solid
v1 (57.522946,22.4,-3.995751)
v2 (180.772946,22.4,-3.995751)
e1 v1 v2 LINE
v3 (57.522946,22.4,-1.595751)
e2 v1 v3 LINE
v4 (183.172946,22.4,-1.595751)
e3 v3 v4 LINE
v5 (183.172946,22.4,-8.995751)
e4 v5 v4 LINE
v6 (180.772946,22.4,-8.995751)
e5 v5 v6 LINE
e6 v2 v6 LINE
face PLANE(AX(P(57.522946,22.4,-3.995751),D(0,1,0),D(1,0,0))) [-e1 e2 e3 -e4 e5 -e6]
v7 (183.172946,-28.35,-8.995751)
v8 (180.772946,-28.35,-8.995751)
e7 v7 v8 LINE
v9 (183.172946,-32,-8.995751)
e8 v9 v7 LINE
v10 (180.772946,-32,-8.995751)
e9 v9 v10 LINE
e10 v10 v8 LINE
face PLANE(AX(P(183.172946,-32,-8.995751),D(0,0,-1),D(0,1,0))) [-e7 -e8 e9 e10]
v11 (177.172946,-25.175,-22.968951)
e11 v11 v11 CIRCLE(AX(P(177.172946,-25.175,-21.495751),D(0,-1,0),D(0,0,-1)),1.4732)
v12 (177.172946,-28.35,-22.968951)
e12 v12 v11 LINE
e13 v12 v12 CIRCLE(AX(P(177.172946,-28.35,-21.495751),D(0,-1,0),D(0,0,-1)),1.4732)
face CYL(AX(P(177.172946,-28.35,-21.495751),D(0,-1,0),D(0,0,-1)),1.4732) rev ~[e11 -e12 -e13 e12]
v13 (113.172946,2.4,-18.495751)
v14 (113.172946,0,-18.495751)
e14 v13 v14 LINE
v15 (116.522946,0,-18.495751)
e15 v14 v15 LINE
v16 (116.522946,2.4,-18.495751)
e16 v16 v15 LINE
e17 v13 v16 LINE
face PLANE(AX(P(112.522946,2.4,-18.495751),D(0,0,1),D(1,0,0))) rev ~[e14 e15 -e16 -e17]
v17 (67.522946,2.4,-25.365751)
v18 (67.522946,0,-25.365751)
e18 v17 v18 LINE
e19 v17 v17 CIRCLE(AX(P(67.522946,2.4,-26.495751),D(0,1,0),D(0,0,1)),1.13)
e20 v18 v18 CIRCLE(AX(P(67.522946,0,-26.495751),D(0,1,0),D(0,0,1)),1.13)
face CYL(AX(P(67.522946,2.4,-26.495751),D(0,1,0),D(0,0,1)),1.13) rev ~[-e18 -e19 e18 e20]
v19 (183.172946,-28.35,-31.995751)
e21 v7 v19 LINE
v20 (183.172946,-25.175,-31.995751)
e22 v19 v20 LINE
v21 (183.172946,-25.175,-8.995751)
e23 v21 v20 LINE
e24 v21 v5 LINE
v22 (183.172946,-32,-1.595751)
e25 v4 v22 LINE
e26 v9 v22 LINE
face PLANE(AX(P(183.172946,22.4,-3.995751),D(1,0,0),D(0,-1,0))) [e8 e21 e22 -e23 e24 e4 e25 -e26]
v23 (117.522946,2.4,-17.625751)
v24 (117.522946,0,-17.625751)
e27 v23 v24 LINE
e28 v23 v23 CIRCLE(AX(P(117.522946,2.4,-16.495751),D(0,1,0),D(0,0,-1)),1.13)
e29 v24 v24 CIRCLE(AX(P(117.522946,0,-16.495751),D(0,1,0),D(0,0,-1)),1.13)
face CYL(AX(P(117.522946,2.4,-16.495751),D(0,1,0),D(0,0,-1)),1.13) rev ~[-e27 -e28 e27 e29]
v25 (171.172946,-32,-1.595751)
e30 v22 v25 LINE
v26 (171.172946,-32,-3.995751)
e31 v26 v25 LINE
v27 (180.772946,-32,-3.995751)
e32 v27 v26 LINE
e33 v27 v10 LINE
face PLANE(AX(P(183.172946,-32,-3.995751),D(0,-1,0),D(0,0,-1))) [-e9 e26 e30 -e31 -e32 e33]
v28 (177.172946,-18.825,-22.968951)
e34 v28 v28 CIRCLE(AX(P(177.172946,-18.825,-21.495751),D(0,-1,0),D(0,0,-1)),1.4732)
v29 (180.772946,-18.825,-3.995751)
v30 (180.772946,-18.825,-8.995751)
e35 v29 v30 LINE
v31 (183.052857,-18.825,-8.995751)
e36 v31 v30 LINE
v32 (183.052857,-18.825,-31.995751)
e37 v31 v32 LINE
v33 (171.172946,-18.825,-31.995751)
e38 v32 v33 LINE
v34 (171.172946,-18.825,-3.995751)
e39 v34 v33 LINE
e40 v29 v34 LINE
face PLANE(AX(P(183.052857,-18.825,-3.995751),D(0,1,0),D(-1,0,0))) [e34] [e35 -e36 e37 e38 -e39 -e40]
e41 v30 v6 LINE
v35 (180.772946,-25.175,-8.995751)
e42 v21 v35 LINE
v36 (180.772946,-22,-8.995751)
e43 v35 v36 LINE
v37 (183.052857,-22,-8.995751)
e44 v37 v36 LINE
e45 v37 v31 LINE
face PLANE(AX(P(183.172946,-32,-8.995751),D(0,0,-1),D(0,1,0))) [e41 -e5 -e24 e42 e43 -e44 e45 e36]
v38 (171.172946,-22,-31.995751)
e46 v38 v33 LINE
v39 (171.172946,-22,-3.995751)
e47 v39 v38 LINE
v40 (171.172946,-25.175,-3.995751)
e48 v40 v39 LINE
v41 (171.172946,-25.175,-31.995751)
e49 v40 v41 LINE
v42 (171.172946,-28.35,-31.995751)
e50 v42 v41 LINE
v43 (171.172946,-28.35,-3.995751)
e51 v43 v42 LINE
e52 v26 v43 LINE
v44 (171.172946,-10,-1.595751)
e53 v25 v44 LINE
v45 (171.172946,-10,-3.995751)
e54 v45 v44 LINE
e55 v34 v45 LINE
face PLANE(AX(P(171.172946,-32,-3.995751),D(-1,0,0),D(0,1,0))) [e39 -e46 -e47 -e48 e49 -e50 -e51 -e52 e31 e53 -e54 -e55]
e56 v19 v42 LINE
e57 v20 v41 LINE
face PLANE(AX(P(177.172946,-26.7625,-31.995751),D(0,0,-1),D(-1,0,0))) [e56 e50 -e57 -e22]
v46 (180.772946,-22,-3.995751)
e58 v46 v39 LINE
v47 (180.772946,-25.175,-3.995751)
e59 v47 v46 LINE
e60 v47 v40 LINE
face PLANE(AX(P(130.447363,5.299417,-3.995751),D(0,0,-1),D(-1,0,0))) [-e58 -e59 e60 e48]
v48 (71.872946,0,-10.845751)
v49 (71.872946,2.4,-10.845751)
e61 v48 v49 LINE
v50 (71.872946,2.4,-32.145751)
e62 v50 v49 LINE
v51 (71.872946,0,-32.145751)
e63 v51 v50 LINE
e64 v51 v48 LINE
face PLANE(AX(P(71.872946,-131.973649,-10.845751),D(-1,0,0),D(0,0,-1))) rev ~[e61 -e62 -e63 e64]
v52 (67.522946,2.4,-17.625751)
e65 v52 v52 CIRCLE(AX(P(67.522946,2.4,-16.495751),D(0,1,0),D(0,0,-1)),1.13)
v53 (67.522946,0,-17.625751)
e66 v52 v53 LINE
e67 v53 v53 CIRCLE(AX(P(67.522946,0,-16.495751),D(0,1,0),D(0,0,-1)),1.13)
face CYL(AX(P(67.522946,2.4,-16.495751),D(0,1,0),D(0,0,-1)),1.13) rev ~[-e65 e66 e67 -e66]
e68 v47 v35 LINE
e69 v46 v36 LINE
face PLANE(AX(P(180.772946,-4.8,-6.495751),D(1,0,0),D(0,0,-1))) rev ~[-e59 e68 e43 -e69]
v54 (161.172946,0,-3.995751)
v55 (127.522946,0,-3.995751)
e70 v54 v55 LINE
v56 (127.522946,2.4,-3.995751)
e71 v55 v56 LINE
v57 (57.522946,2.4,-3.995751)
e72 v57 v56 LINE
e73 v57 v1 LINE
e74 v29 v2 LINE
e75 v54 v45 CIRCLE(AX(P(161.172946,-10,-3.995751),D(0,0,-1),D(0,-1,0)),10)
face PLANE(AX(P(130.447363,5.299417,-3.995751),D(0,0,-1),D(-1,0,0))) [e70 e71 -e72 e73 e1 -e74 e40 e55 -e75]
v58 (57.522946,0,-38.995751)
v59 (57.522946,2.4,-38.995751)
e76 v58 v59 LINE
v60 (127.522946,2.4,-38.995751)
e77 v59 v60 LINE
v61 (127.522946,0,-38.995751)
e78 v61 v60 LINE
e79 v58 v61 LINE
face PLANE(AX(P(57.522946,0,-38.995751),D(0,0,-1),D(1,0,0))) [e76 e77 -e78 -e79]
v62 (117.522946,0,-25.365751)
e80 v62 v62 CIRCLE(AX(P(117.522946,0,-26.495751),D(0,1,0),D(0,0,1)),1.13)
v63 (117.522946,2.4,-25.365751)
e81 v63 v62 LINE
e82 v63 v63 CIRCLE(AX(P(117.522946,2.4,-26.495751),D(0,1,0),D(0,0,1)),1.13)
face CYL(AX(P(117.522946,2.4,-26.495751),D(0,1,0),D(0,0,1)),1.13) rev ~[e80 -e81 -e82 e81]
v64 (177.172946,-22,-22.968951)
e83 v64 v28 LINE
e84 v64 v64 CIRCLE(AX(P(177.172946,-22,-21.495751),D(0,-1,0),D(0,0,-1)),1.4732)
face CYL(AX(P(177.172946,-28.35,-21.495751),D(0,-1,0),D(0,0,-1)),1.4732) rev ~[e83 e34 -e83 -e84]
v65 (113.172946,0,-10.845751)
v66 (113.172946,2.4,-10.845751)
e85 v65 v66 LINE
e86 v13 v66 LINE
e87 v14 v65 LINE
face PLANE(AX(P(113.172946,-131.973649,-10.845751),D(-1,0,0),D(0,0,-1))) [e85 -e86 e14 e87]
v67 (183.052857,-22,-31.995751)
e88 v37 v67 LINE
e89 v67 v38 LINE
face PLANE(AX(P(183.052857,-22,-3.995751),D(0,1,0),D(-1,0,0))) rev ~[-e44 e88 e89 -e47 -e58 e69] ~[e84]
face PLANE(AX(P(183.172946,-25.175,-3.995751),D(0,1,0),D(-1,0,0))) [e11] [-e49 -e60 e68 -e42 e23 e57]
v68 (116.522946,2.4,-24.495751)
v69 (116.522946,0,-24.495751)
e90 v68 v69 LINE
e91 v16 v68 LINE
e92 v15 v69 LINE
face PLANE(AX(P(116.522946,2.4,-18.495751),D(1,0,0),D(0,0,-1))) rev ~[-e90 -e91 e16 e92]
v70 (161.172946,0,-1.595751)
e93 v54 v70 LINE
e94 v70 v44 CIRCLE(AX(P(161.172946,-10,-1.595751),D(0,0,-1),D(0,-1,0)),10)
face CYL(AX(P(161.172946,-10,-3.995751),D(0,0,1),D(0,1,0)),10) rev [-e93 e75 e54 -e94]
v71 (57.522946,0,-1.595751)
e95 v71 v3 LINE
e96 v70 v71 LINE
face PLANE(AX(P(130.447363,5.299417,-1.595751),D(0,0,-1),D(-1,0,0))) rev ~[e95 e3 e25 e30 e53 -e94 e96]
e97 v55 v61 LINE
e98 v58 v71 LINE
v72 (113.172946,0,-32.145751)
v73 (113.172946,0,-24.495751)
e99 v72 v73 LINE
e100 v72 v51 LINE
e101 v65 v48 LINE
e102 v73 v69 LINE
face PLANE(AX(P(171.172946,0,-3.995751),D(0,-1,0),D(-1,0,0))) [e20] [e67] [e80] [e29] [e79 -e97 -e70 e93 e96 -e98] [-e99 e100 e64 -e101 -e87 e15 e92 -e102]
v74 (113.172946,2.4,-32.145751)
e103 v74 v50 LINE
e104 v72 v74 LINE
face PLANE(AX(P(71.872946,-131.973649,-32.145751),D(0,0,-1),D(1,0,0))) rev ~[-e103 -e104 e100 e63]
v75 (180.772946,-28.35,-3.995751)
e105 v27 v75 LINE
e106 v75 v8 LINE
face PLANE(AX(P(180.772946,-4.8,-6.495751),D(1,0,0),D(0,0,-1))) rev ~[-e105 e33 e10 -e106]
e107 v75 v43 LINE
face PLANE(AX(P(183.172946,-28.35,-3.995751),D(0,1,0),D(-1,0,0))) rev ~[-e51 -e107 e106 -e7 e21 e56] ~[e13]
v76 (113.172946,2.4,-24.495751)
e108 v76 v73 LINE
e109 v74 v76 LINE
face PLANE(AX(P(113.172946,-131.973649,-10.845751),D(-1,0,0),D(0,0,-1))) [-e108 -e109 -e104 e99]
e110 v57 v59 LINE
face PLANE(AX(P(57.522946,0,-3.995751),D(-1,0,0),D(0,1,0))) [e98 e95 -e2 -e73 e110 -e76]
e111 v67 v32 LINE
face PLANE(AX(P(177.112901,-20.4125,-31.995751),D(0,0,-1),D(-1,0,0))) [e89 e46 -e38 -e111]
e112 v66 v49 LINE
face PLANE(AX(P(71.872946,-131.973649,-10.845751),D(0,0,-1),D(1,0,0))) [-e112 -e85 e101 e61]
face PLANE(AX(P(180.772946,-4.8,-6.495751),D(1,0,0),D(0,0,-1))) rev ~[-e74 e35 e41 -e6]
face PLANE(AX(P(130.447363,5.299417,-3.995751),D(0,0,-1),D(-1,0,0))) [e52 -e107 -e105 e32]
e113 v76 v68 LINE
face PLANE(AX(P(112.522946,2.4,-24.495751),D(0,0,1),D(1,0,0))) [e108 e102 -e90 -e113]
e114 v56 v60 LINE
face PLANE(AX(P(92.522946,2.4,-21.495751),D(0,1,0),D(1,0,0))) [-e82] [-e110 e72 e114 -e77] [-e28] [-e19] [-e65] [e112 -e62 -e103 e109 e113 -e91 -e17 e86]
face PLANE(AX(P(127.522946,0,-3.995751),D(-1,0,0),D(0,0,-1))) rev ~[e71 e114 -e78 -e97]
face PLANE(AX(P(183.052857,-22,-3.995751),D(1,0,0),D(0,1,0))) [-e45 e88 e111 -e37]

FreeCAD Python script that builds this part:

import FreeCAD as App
import Part
import Sketcher
from FreeCAD import Vector
Q = App.Units.Quantity


def edges_at(feature, points):
    """Names of the edges that pass closest to the given points."""
    edges = feature.Shape.Edges
    near = lambda p: min(range(len(edges)), key=lambda i: edges[i].distToShape(Part.Vertex(*p))[0])
    return sorted({f"Edge{near(p) + 1}" for p in points})


def add_polygon(sketch, points):
    """Adds a closed chain of lines whose ends are joined by coincident constraints."""
    first, n = sketch.GeometryCount, len(points)
    for a, b in zip(points, points[1:] + points[:1]):
        sketch.addGeometry(Part.LineSegment(App.Vector(*a, 0), App.Vector(*b, 0)), False)
    for i in range(n):
        sketch.addConstraint(Sketcher.Constraint("Coincident", first + i, 2, first + (i + 1) % n, 1))

doc = App.newDocument("Part")
body = doc.addObject("PartDesign::Body", "Body")

# Sketch on XZ plane
sketch1 = body.newObject("Sketcher::SketchObject", "Sketch")
sketch1.AttachmentSupport = (doc.getObject("XZ_Plane"), [""])
sketch1.MapMode = "FlatFace"
add_polygon(sketch1, [(58, -39), (58, -4), (128, -4), (128, -39)])  # lines 0-3
sketch1.addConstraint([
    Sketcher.Constraint("Vertical", 0),
    Sketcher.Constraint("Horizontal", 1),
    Sketcher.Constraint("Vertical", 2),
    Sketcher.Constraint("Horizontal", 3),
    Sketcher.Constraint("DistanceX", 1, 1, 1, 2, Q("70 mm")),
    Sketcher.Constraint("DistanceY", 0, 1, 0, 2, Q("35 mm")),
    Sketcher.Constraint("DistanceY", 0, 2, -1, 1, Q("3.995751 mm")),
    Sketcher.Constraint("DistanceX", -1, 1, 0, 2, Q("57.522946 mm")),
])
pad1 = body.newObject("PartDesign::Pad", "Pad")
pad1.Profile = sketch1
pad1.Length = 2.4
pad1.Reversed = True

# Sketch on XZ plane
sketch2 = body.newObject("Sketcher::SketchObject", "Sketch001")
sketch2.AttachmentSupport = (doc.getObject("XZ_Plane"), [""])
sketch2.MapMode = "FlatFace"
sketch2.AttachmentOffset = App.Placement(Vector(0, 0, -2.4), App.Rotation())
sketch2.addGeometry(Part.Circle(Vector(67.5, -26.5, 0), Vector(0, 0, 1), 1.1), False)  # 0
sketch2.addGeometry(Part.Circle(Vector(117.5, -26.5, 0), Vector(0, 0, 1), 1.1), False)  # 1
sketch2.addGeometry(Part.Circle(Vector(117.5, -16.5, 0), Vector(0, 0, 1), 1.1), False)  # 2
sketch2.addGeometry(Part.Circle(Vector(67.5, -16.5, 0), Vector(0, 0, 1), 1.1), False)  # 3
add_polygon(sketch2, [(72.5, -31.5), (72.5, -11.5), (112.5, -11.5), (112.5, -31.5)])  # lines 4-7
sketch2.addConstraint([
    Sketcher.Constraint("Vertical", 4),
    Sketcher.Constraint("Horizontal", 5),
    Sketcher.Constraint("Vertical", 6),
    Sketcher.Constraint("Horizontal", 7),
    Sketcher.Constraint("Equal", 0, 1),
    Sketcher.Constraint("Equal", 1, 2),
    Sketcher.Constraint("Equal", 2, 3),
    Sketcher.Constraint("Horizontal", 0, 3, 1, 3),
    Sketcher.Constraint("Horizontal", 2, 3, 3, 3),
    Sketcher.Constraint("Vertical", 1, 3, 2, 3),
    Sketcher.Constraint("Vertical", 0, 3, 3, 3),
    Sketcher.Constraint("Diameter", 0, Q("2.26 mm")),
    Sketcher.Constraint("DistanceX", 5, 1, 5, 2, Q("40 mm")),
    Sketcher.Constraint("DistanceY", 4, 1, 4, 2, Q("20 mm")),
    Sketcher.Constraint("DistanceX", 0, 3, 1, 3, Q("50 mm")),
    Sketcher.Constraint("DistanceY", 1, 3, 2, 3, Q("10 mm")),
    Sketcher.Constraint("DistanceX", 3, 3, 4, 2, Q("5 mm")),
    Sketcher.Constraint("DistanceY", 3, 3, 4, 2, Q("5 mm")),
    Sketcher.Constraint("DistanceY", 0, 3, -1, 1, Q("26.495751 mm")),
    Sketcher.Constraint("DistanceX", -1, 1, 0, 3, Q("67.522946 mm")),
])
pocket1 = body.newObject("PartDesign::Pocket", "Pocket")
pocket1.Profile = sketch2
pocket1.Length = 2.4
pocket1.Reversed = True

# Sketch on XZ plane
sketch3 = body.newObject("Sketcher::SketchObject", "Sketch002")
sketch3.AttachmentSupport = (doc.getObject("XZ_Plane"), [""])
sketch3.MapMode = "FlatFace"
sketch3.AttachmentOffset = App.Placement(Vector(0, 0, -2.4), App.Rotation())
add_polygon(sketch3, [(112.5, -24.5), (112.5, -18.5), (116.5, -18.5), (116.5, -24.5)])  # lines 0-3
sketch3.addConstraint([
    Sketcher.Constraint("Vertical", 0),
    Sketcher.Constraint("Horizontal", 1),
    Sketcher.Constraint("Vertical", 2),
    Sketcher.Constraint("Horizontal", 3),
    Sketcher.Constraint("DistanceX", 1, 1, 1, 2, Q("4 mm")),
    Sketcher.Constraint("DistanceY", 0, 1, 0, 2, Q("6 mm")),
    Sketcher.Constraint("DistanceY", 0, 2, -1, 1, Q("18.495751 mm")),
    Sketcher.Constraint("DistanceX", -1, 1, 0, 2, Q("112.522946 mm")),
])
pocket2 = body.newObject("PartDesign::Pocket", "Pocket001")
pocket2.Profile = sketch3
pocket2.Length = 2.4
pocket2.Reversed = True

# Sketch on XZ plane
sketch4 = body.newObject("Sketcher::SketchObject", "Sketch003")
sketch4.AttachmentSupport = (doc.getObject("XZ_Plane"), [""])
sketch4.MapMode = "FlatFace"
sketch4.AttachmentOffset = App.Placement(Vector(0, 0, -2.4), App.Rotation())
add_polygon(sketch4, [(72, -32), (72, -11), (113, -11), (113, -32)])  # lines 0-3
add_polygon(sketch4, [(113, -11), (73, -11), (73, -31), (113, -31)])  # lines 4-7
sketch4.addConstraint([
    Sketcher.Constraint("Vertical", 0),
    Sketcher.Constraint("Horizontal", 1),
    Sketcher.Constraint("Vertical", 2),
    Sketcher.Constraint("Horizontal", 3),
    Sketcher.Constraint("Horizontal", 4),
    Sketcher.Constraint("Vertical", 5),
    Sketcher.Constraint("Horizontal", 6),
    Sketcher.Constraint("Vertical", 7),
    Sketcher.Constraint("DistanceX", 4, 2, 4, 1, Q("40 mm")),
    Sketcher.Constraint("DistanceY", 5, 2, 5, 1, Q("20 mm")),
    Sketcher.Constraint("DistanceX", 1, 1, 1, 2, Q("41.3 mm")),
    Sketcher.Constraint("DistanceY", 0, 1, 0, 2, Q("21.3 mm")),
    Sketcher.Constraint("DistanceX", 0, 2, 4, 2, Q("0.65 mm")),
    Sketcher.Constraint("DistanceY", 4, 2, 0, 2, Q("0.65 mm")),
    Sketcher.Constraint("DistanceY", 0, 2, -1, 1, Q("10.845751 mm")),
    Sketcher.Constraint("DistanceX", -1, 1, 0, 2, Q("71.872946 mm")),
])
pocket3 = body.newObject("PartDesign::Pocket", "Pocket002")
pocket3.Profile = sketch4
pocket3.Type = "ThroughAll"
pocket3.Midplane = True

# Sketch on XY plane
sketch5 = body.newObject("Sketcher::SketchObject", "Sketch004")
sketch5.AttachmentSupport = (doc.getObject("XY_Plane"), [""])
sketch5.MapMode = "FlatFace"
sketch5.AttachmentOffset = App.Placement(Vector(0, 0, -3.995751), App.Rotation())
add_polygon(sketch5, [(183, 22), (58, 22), (58, 0), (171, 0), (171, -32), (183, -32)])  # lines 0-5
sketch5.addConstraint([
    Sketcher.Constraint("Horizontal", 0),
    Sketcher.Constraint("Vertical", 1),
    Sketcher.Constraint("Horizontal", 2),
    Sketcher.Constraint("Vertical", 3),
    Sketcher.Constraint("Horizontal", 4),
    Sketcher.Constraint("Vertical", 5),
    Sketcher.Constraint("PointOnObject", 1, 2, -1),
    Sketcher.Constraint("DistanceX", 4, 1, 4, 2, Q("12 mm")),
    Sketcher.Constraint("DistanceY", 3, 2, 3, 1, Q("32 mm")),
    Sketcher.Constraint("DistanceY", 1, 2, 1, 1, Q("22.4 mm")),
    Sketcher.Constraint("DistanceX", 0, 2, 0, 1, Q("125.65 mm")),
    Sketcher.Constraint("DistanceX", -1, 1, 0, 2, Q("57.522946 mm")),
])
pad2 = body.newObject("PartDesign::Pad", "Pad001")
pad2.Profile = sketch5
pad2.Length = 2.4

# Sketch on XY plane
sketch6 = body.newObject("Sketcher::SketchObject", "Sketch005")
sketch6.AttachmentSupport = (doc.getObject("XY_Plane"), [""])
sketch6.MapMode = "FlatFace"
sketch6.AttachmentOffset = App.Placement(Vector(0, 0, -3.995751), App.Rotation())
add_polygon(sketch6, [(183.1, -18.8), (183.1, -22), (171.2, -22), (171.2, -18.8)])  # lines 0-3
add_polygon(sketch6, [(183.2, -25.2), (183.2, -28.4), (171.2, -28.4), (171.2, -25.2)])  # lines 4-7
sketch6.addConstraint([
    Sketcher.Constraint("Vertical", 0),
    Sketcher.Constraint("Horizontal", 1),
    Sketcher.Constraint("Vertical", 2),
    Sketcher.Constraint("Horizontal", 3),
    Sketcher.Constraint("Vertical", 4),
    Sketcher.Constraint("Horizontal", 5),
    Sketcher.Constraint("Vertical", 6),
    Sketcher.Constraint("Horizontal", 7),
    Sketcher.Constraint("Vertical", 2, 2, 5, 2),
    Sketcher.Constraint("Equal", 2, 4),
    Sketcher.Constraint("DistanceX", 5, 2, 5, 1, Q("12 mm")),
    Sketcher.Constraint("DistanceY", 0, 2, -1, 1, Q("22 mm")),
    Sketcher.Constraint("DistanceY", 0, 2, 0, 1, Q("3.175 mm")),
    Sketcher.Constraint("DistanceY", 4, 2, -1, 1, Q("28.35 mm")),
    Sketcher.Constraint("DistanceX", 1, 2, 1, 1, Q("11.879911 mm")),
    Sketcher.Constraint("DistanceX", -1, 1, 0, 2, Q("183.052857 mm")),
])
pad3 = body.newObject("PartDesign::Pad", "Pad002")
pad3.Profile = sketch6
pad3.Length = 28
pad3.Reversed = True

# Sketch on XZ plane
sketch7 = body.newObject("Sketcher::SketchObject", "Sketch006")
sketch7.AttachmentSupport = (doc.getObject("XZ_Plane"), [""])
sketch7.MapMode = "FlatFace"
sketch7.AttachmentOffset = App.Placement(Vector(0, 0, 28.35), App.Rotation())
sketch7.addGeometry(Part.Circle(Vector(177.2, -21.5, 0), Vector(0, 0, 1), 1.5), False)
sketch7.addConstraint([
    Sketcher.Constraint("Diameter", 0, Q("2.9464 mm")),
    Sketcher.Constraint("DistanceY", 0, 3, -1, 1, Q("21.495751 mm")),
    Sketcher.Constraint("DistanceX", -1, 1, 0, 3, Q("177.172946 mm")),
])
pocket4 = body.newObject("PartDesign::Pocket", "Pocket003")
pocket4.Profile = sketch7
pocket4.Length = 30
doc.recompute()

fillet = body.newObject("PartDesign::Fillet", "Fillet")
fillet.Base = (pocket4, edges_at(pocket4, [(171.173, 0, -2.796)]))
fillet.Radius = 10

# Sketch on YZ plane
sketch8 = body.newObject("Sketcher::SketchObject", "Sketch007")
sketch8.AttachmentSupport = (doc.getObject("YZ_Plane"), [""])
sketch8.MapMode = "FlatFace"
sketch8.AttachmentOffset = App.Placement(Vector(0, 0, 183.172946), App.Rotation())
add_polygon(sketch8, [(22.4, -4), (-32, -4), (-32, -9), (22.4, -9)])  # lines 0-3
sketch8.addConstraint([
    Sketcher.Constraint("Horizontal", 0),
    Sketcher.Constraint("Vertical", 1),
    Sketcher.Constraint("Horizontal", 2),
    Sketcher.Constraint("Vertical", 3),
    Sketcher.Constraint("DistanceY", 1, 2, 1, 1, Q("5 mm")),
    Sketcher.Constraint("DistanceX", 0, 2, 0, 1, Q("54.4 mm")),
    Sketcher.Constraint("DistanceX", 0, 2, -1, 1, Q("32 mm")),
    Sketcher.Constraint("DistanceY", 0, 2, -1, 1, Q("3.995751 mm")),
])
pad4 = body.newObject("PartDesign::Pad", "Pad003")
pad4.Profile = sketch8
pad4.Length = 2.4
pad4.Reversed = True

doc.recompute()
